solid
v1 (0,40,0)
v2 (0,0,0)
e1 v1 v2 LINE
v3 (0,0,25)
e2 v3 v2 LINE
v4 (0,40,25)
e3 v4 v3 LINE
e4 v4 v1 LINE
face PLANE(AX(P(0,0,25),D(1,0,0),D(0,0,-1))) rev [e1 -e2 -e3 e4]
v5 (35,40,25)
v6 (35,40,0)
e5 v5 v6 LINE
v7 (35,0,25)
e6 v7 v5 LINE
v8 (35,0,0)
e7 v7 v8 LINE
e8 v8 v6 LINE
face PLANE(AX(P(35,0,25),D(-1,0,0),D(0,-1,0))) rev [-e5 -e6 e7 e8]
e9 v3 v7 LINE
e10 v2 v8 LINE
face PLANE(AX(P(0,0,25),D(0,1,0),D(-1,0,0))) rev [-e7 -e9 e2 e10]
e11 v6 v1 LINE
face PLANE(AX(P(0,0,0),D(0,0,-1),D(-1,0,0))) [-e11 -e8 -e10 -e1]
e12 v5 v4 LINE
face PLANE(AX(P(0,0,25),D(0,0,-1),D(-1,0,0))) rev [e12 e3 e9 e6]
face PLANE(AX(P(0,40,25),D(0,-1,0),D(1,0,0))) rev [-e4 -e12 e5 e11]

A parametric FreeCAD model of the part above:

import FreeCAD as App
import Part
import Sketcher

V = App.Vector
Q = App.Units.Quantity

doc = App.newDocument("Part")
body = doc.addObject("PartDesign::Body", "Body")

# Sketch on XY plane
sketch1 = body.newObject("Sketcher::SketchObject", "Sketch")
sketch1.AttachmentSupport = (doc.getObject("XY_Plane"), [""])
sketch1.MapMode = "FlatFace"
sketch1.addGeometry([
    Part.LineSegment(V(0, 40, 0), V(0, 0, 0)),
    Part.LineSegment(V(0, 0, 0), V(35, 0, 0)),
    Part.LineSegment(V(35, 0, 0), V(35, 40, 0)),
    Part.LineSegment(V(35, 40, 0), V(0, 40, 0)),
], False)
sketch1.addConstraint([
    Sketcher.Constraint("Coincident", 0, 2, 1, 1),
    Sketcher.Constraint("Coincident", 1, 2, 2, 1),
    Sketcher.Constraint("Coincident", 2, 2, 3, 1),
    Sketcher.Constraint("Coincident", 3, 2, 0, 1),
    Sketcher.Constraint("Vertical", 0),
    Sketcher.Constraint("Horizontal", 1),
    Sketcher.Constraint("Vertical", 2),
    Sketcher.Constraint("Horizontal", 3),
    Sketcher.Constraint("Coincident", 0, 2, -1, 1),
    Sketcher.Constraint("DistanceX", 1, 1, 1, 2, Q("35 mm")),
    Sketcher.Constraint("DistanceY", 0, 2, 0, 1, Q("40 mm")),
])
pad1 = body.newObject("PartDesign::Pad", "Pad")
pad1.Profile = sketch1
pad1.Length = 25

doc.recompute()
